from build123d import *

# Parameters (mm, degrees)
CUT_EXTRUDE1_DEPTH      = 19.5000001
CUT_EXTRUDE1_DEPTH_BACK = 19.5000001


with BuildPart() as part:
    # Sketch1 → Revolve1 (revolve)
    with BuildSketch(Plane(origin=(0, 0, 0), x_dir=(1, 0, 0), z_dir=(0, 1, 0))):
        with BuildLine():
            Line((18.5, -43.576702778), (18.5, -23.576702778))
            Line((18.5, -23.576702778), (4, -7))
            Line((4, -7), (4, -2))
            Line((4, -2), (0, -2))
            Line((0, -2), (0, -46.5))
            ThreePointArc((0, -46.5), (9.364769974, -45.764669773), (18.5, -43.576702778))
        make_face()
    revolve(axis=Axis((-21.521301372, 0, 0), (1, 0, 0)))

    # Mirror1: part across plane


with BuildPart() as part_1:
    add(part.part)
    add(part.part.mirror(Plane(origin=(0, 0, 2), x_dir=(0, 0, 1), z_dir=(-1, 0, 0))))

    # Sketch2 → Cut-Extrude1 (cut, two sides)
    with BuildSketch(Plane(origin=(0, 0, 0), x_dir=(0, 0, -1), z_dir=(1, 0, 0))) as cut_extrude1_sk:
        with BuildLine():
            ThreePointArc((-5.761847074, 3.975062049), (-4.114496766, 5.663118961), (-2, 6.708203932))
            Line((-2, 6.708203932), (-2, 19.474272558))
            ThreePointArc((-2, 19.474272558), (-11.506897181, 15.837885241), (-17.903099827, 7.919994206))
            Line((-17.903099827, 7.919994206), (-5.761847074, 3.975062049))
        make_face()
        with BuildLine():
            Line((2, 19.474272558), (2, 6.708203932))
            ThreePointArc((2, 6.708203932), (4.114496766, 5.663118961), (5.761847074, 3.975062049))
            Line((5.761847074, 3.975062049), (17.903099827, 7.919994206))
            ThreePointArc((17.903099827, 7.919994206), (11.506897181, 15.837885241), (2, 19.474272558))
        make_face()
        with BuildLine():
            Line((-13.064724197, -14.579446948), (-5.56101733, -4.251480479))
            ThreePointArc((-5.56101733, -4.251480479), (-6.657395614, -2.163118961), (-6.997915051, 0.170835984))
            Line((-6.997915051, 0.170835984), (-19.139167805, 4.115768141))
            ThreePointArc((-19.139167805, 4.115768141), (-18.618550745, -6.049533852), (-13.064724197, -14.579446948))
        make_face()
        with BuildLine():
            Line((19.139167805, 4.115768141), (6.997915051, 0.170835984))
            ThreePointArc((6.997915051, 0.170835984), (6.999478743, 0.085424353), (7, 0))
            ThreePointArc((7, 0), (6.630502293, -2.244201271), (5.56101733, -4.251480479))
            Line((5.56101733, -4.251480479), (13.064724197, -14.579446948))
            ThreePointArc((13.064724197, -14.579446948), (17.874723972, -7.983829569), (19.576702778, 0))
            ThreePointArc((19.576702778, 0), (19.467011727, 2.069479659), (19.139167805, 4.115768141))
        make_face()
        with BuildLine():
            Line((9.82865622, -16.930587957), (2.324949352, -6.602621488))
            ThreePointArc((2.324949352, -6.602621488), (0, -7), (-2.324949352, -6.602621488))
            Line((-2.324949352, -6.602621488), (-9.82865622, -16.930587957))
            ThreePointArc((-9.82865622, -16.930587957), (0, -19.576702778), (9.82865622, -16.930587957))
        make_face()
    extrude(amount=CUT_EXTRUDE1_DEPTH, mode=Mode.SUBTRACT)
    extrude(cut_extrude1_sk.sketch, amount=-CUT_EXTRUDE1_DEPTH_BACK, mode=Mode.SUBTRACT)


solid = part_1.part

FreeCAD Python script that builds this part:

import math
import FreeCAD as App
import Part
import Sketcher
from FreeCAD import Vector
Q = App.Units.Quantity

doc = App.newDocument("Part")
body = doc.addObject("PartDesign::Body", "Body")

# Sketch on XZ plane
sketch1 = doc.addObject("Sketcher::SketchObject", "Sketch")
body.addObject(sketch1)
sketch1.AttachmentSupport = (doc.XZ_Plane, [""])
sketch1.MapMode = "FlatFace"
sketch1.addGeometry([
    Part.LineSegment(Vector(18.5, 43.6, 0), Vector(18.5, 23.6, 0)),  # 0
    Part.LineSegment(Vector(18.5, 23.6, 0), Vector(4, 7, 0)),  # 1
    Part.LineSegment(Vector(4, 7, 0), Vector(4, 2, 0)),  # 2
    Part.LineSegment(Vector(4, 2, 0), Vector(0, 2, 0)),  # 3
    Part.LineSegment(Vector(0, 2, 0), Vector(0, 46.5, 0)),  # 4
    Part.ArcOfCircle(Part.Circle(Vector(0, -13.5, 0), Vector(0, 0, 1), 60), math.radians(72.04), math.radians(90)),  # 5
], False)
sketch1.addConstraint([
    Sketcher.Constraint("Coincident", 0, 2, 1, 1),
    Sketcher.Constraint("Coincident", 1, 2, 2, 1),
    Sketcher.Constraint("Coincident", 2, 2, 3, 1),
    Sketcher.Constraint("Coincident", 3, 2, 4, 1),
    Sketcher.Constraint("Coincident", 4, 2, 5, 2),
    Sketcher.Constraint("Coincident", 5, 1, 0, 1),
    Sketcher.Constraint("Vertical", 0),
    Sketcher.Constraint("Vertical", 2),
    Sketcher.Constraint("Horizontal", 3),
    Sketcher.Constraint("Vertical", 4),
    Sketcher.Constraint("PointOnObject", 5, 3, -2),
    Sketcher.Constraint("PointOnObject", 3, 2, -2),
    Sketcher.Constraint("Radius", 5, 60.0),
    Sketcher.Constraint("DistanceX", 3, 2, 3, 1, 4.0),
    Sketcher.Constraint("DistanceY", 0, 2, 0, 1, 20.0),
    Sketcher.Constraint("DistanceY", 2, 2, 2, 1, 5.0),
    Sketcher.Constraint("DistanceY", 4, 1, 4, 2, 44.5),
    Sketcher.Constraint("DistanceY", -1, 1, 1, 2, 7.0),
    Sketcher.Constraint("DistanceX", -1, 1, 0, 2, 18.5),
])
revolution = doc.addObject("PartDesign::Revolution", "Revolution")
body.addObject(revolution)
revolution.Profile = sketch1
revolution.ReferenceAxis = (sketch1, ["H_Axis"])
revolution.Angle = 360
body2 = doc.addObject("PartDesign::Body", "Body001")
doc.recompute()

body2.BaseFeature = body
doc.recompute()

mirroring = doc.addObject("Part::Mirroring", "Mirroring")
mirroring.Source = body
mirroring.Base = Vector(0, 0, 2)
mirroring.Normal = Vector(-1, 0, 0)
body3 = doc.addObject("PartDesign::Body", "Body002")
body3.BaseFeature = mirroring
boolean = doc.addObject("PartDesign::Boolean", "Boolean")
body2.addObject(boolean)
boolean.Type = "Fuse"
boolean.addObjects([body3])
doc.recompute()

# Sketch on YZ plane
sketch2 = doc.addObject("Sketcher::SketchObject", "Sketch001")
body2.addObject(sketch2)
sketch2.AttachmentSupport = (doc.getObject("YZ_Plane001"), [""])
sketch2.MapMode = "FlatFace"
sketch2.addGeometry([
    Part.ArcOfCircle(Part.Circle(Vector(0, 0, 0), Vector(0, 0, 1), 7), math.radians(17), math.radians(55)),  # 0
    Part.LineSegment(Vector(6.71, 2, 0), Vector(19.47, 2, 0)),  # 1
    Part.ArcOfCircle(Part.Circle(Vector(0, 0, 0), Vector(0, 0, 1), 19.58), math.radians(6), math.radians(66)),  # 2
    Part.LineSegment(Vector(7.92, 17.9, 0), Vector(3.98, 5.76, 0)),  # 3
    Part.LineSegment(Vector(19.47, -2, 0), Vector(6.71, -2, 0)),  # 4
    Part.ArcOfCircle(Part.Circle(Vector(0, 0, 0), Vector(0, 0, 1), 7), math.radians(-55), math.radians(-17)),  # 5
    Part.LineSegment(Vector(3.98, -5.76, 0), Vector(7.92, -17.9, 0)),  # 6
    Part.ArcOfCircle(Part.Circle(Vector(0, 0, 0), Vector(0, 0, 1), 19.58), math.radians(-66), math.radians(-6)),  # 7
    Part.LineSegment(Vector(-14.58, 13.06, 0), Vector(-4.25, 5.56, 0)),  # 8
    Part.ArcOfCircle(Part.Circle(Vector(0, 0, 0), Vector(0, 0, 1), 7), math.radians(89), math.radians(127)),  # 9
    Part.LineSegment(Vector(0.17, 7, 0), Vector(4.12, 19.14, 0)),  # 10
    Part.ArcOfCircle(Part.Circle(Vector(0, 0, 0), Vector(0, 0, 1), 19.58), math.radians(78), math.radians(138)),  # 11
    Part.LineSegment(Vector(4.12, -19.14, 0), Vector(0.17, -7, 0)),  # 12
    Part.ArcOfCircle(Part.Circle(Vector(0, 0, 0), Vector(0, 0, 1), 7), math.radians(-90), math.radians(-88.6)),  # 13
    Part.ArcOfCircle(Part.Circle(Vector(0, 0, 0), Vector(0, 0, 1), 7), math.radians(-127), math.radians(-90)),  # 14
    Part.LineSegment(Vector(-4.25, -5.56, 0), Vector(-14.58, -13.06, 0)),  # 15
    Part.ArcOfCircle(Part.Circle(Vector(0, 0, 0), Vector(0, 0, 1), 19.58), math.radians(-138), math.radians(-90)),  # 16
    Part.ArcOfCircle(Part.Circle(Vector(0, 0, 0), Vector(0, 0, 1), 19.58), math.radians(-90), math.radians(-77.86)),  # 17
    Part.LineSegment(Vector(-16.93, -9.83, 0), Vector(-6.6, -2.32, 0)),  # 18
    Part.ArcOfCircle(Part.Circle(Vector(0, 0, 0), Vector(0, 0, 1), 7), math.radians(161), math.radians(199)),  # 19
    Part.LineSegment(Vector(-6.6, 2.32, 0), Vector(-16.93, 9.83, 0)),  # 20
    Part.ArcOfCircle(Part.Circle(Vector(0, 0, 0), Vector(0, 0, 1), 19.58), math.radians(150), math.radians(210)),  # 21
], False)
sketch2.addConstraint([
    Sketcher.Constraint("Coincident", 0, 1, 1, 1),
    Sketcher.Constraint("Coincident", 1, 2, 2, 1),
    Sketcher.Constraint("Coincident", 2, 2, 3, 1),
    Sketcher.Constraint("Coincident", 3, 2, 0, 2),
    Sketcher.Constraint("Coincident", 4, 2, 5, 2),
    Sketcher.Constraint("Coincident", 5, 1, 6, 1),
    Sketcher.Constraint("Coincident", 6, 2, 7, 1),
    Sketcher.Constraint("Coincident", 7, 2, 4, 1),
    Sketcher.Constraint("Coincident", 8, 2, 9, 2),
    Sketcher.Constraint("Coincident", 9, 1, 10, 1),
    Sketcher.Constraint("Coincident", 10, 2, 11, 1),
    Sketcher.Constraint("Coincident", 11, 2, 8, 1),
    Sketcher.Constraint("Coincident", 12, 2, 13, 2),
    Sketcher.Constraint("Tangent", 13, 1, 14, 2),
    Sketcher.Constraint("Coincident", 14, 1, 15, 1),
    Sketcher.Constraint("Coincident", 15, 2, 16, 1),
    Sketcher.Constraint("Tangent", 16, 2, 17, 1),
    Sketcher.Constraint("Coincident", 17, 2, 12, 1),
    Sketcher.Constraint("Coincident", 18, 2, 19, 2),
    Sketcher.Constraint("Coincident", 19, 1, 20, 1),
    Sketcher.Constraint("Coincident", 20, 2, 21, 1),
    Sketcher.Constraint("Coincident", 21, 2, 18, 1),
    Sketcher.Constraint("Horizontal", 1),
    Sketcher.Constraint("Horizontal", 4),
    Sketcher.Constraint("Coincident", 0, 3, -1, 1),
    Sketcher.Constraint("Coincident", 2, 3, -1, 1),
    Sketcher.Constraint("Coincident", 5, 3, -1, 1),
    Sketcher.Constraint("Coincident", 7, 3, -1, 1),
    Sketcher.Constraint("Coincident", 9, 3, -1, 1),
    Sketcher.Constraint("Coincident", 11, 3, -1, 1),
    Sketcher.Constraint("Coincident", 13, 3, -1, 1),
    Sketcher.Constraint("Coincident", 16, 3, -1, 1),
    Sketcher.Constraint("Coincident", 19, 3, -1, 1),
    Sketcher.Constraint("Coincident", 21, 3, -1, 1),
    Sketcher.Constraint("Equal", 0, 5),
    Sketcher.Constraint("Equal", 2, 7),
    Sketcher.Constraint("Equal", 5, 9),
    Sketcher.Constraint("Equal", 7, 11),
    Sketcher.Constraint("Equal", 9, 14),
    Sketcher.Constraint("Equal", 11, 16),
    Sketcher.Constraint("Equal", 16, 17),
    Sketcher.Constraint("Equal", 14, 19),
    Sketcher.Constraint("Equal", 17, 21),
    Sketcher.Constraint("Symmetric", 9, 1, 12, 2, -1),
    Sketcher.Constraint("PointOnObject", 13, 1, -2),
    Sketcher.Constraint("PointOnObject", 16, 2, -2),
    Sketcher.Constraint("Parallel", 3, 10),
    Sketcher.Constraint("Parallel", 6, 12),
    Sketcher.Constraint("Parallel", 15, 18),
    Sketcher.Constraint("Parallel", 8, 20),
    Sketcher.Constraint("Vertical", 0, 1, 4, 2),
    Sketcher.Constraint("Vertical", 3, 2, 5, 1),
    Sketcher.Constraint("Vertical", 2, 2, 6, 2),
    Sketcher.Constraint("Vertical", 8, 2, 14, 1),
    Sketcher.Constraint("Vertical", 11, 2, 15, 2),
    Sketcher.Constraint("Vertical", 18, 2, 19, 1),
    Sketcher.Constraint("Equal", 6, 8),
    Sketcher.Constraint("Equal", 8, 10),
    Sketcher.Constraint("Equal", 15, 18),
    Sketcher.Constraint("Radius", 0, 7.0),
    Sketcher.Constraint("Angle", 3, Q("-108 deg")),
    Sketcher.Constraint("Angle", 8, Q("-36 deg")),
    Sketcher.Constraint("DistanceY", -1, 1, 0, 1, 2.0),
    Sketcher.Constraint("Radius", 2, 19.576703),
    Sketcher.Constraint("DistanceY", -1, 1, 2, 2, 17.9031),
])
pocket1 = doc.addObject("PartDesign::Pocket", "Pocket")
body2.addObject(pocket1)
pocket1.Profile = sketch2
pocket1.Type = "ThroughAll"
pocket1.Midplane = True
mirroring.Visibility = False

doc.recompute()
